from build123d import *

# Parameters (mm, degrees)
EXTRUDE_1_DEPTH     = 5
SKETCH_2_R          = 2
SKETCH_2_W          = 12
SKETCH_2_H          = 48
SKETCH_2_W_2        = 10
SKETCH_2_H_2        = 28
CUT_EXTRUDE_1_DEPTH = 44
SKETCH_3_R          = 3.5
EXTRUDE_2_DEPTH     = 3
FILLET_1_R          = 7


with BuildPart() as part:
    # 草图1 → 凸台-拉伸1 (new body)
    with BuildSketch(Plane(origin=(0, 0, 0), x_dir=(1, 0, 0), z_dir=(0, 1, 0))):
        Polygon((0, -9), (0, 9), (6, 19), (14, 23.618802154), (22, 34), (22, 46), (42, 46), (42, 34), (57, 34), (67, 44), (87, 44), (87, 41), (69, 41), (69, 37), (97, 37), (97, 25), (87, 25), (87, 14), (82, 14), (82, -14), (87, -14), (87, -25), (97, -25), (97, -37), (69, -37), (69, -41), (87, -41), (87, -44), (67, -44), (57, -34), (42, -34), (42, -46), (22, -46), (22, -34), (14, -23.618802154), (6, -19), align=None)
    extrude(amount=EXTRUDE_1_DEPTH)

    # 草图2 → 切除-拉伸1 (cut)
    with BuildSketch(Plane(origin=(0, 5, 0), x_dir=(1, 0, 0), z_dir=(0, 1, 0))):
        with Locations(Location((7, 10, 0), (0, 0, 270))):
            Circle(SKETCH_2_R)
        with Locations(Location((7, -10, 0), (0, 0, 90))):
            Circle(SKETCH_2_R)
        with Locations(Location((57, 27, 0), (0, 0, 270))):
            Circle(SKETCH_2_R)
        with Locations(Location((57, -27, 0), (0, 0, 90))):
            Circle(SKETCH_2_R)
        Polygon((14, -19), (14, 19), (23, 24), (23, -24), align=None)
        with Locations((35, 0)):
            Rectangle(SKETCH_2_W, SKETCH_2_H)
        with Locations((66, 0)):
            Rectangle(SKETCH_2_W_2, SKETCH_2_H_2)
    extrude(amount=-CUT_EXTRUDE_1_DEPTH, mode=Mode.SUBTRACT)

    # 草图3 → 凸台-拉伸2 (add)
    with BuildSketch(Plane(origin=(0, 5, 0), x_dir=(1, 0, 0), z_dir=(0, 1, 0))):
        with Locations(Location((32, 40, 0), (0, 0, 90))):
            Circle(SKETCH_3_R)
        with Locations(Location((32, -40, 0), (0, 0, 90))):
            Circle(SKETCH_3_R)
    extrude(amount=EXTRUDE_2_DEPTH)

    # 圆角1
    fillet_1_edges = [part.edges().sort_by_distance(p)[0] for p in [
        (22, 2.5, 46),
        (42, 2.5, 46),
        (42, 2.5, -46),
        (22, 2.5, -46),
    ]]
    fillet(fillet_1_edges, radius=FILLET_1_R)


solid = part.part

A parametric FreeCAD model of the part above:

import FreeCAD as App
import Part
import Sketcher
from FreeCAD import Vector
Q = App.Units.Quantity


def edges_at(feature, points):
    """Names of the edges that pass closest to the given points."""
    edges = feature.Shape.Edges
    near = lambda p: min(range(len(edges)), key=lambda i: edges[i].distToShape(Part.Vertex(*p))[0])
    return sorted({f"Edge{near(p) + 1}" for p in points})

doc = App.newDocument("Part")
body = doc.addObject("PartDesign::Body", "Body")

sketch1 = body.newObject("Sketcher::SketchObject", "Sketch")
sketch1.AttachmentSupport = (doc.getObject("XZ_Plane"), [""])
sketch1.MapMode = "FlatFace"
sketch1.addGeometry(Part.LineSegment(Vector(0, -9, 0), Vector(0, 9, 0)), False)
sketch1.addGeometry(Part.LineSegment(Vector(0, 9, 0), Vector(6, 19, 0)), False)
sketch1.addGeometry(Part.LineSegment(Vector(6, 19, 0), Vector(14, 23.6, 0)), False)
sketch1.addGeometry(Part.LineSegment(Vector(14, 23.6, 0), Vector(22, 34, 0)), False)
sketch1.addGeometry(Part.LineSegment(Vector(22, 34, 0), Vector(22, 46, 0)), False)
sketch1.addGeometry(Part.LineSegment(Vector(22, 46, 0), Vector(42, 46, 0)), False)
sketch1.addGeometry(Part.LineSegment(Vector(42, 46, 0), Vector(42, 34, 0)), False)
sketch1.addGeometry(Part.LineSegment(Vector(42, 34, 0), Vector(57, 34, 0)), False)
sketch1.addGeometry(Part.LineSegment(Vector(57, 34, 0), Vector(67, 44, 0)), False)
sketch1.addGeometry(Part.LineSegment(Vector(67, 44, 0), Vector(87, 44, 0)), False)
sketch1.addGeometry(Part.LineSegment(Vector(87, 44, 0), Vector(87, 41, 0)), False)
sketch1.addGeometry(Part.LineSegment(Vector(87, 41, 0), Vector(69, 41, 0)), False)
sketch1.addGeometry(Part.LineSegment(Vector(69, 41, 0), Vector(69, 37, 0)), False)
sketch1.addGeometry(Part.LineSegment(Vector(69, 37, 0), Vector(97, 37, 0)), False)
sketch1.addGeometry(Part.LineSegment(Vector(97, 37, 0), Vector(97, 25, 0)), False)
sketch1.addGeometry(Part.LineSegment(Vector(97, 25, 0), Vector(87, 25, 0)), False)
sketch1.addGeometry(Part.LineSegment(Vector(87, 25, 0), Vector(87, 14, 0)), False)
sketch1.addGeometry(Part.LineSegment(Vector(87, 14, 0), Vector(82, 14, 0)), False)
sketch1.addGeometry(Part.LineSegment(Vector(82, 14, 0), Vector(82, -14, 0)), False)
sketch1.addGeometry(Part.LineSegment(Vector(82, -14, 0), Vector(87, -14, 0)), False)
sketch1.addGeometry(Part.LineSegment(Vector(87, -14, 0), Vector(87, -25, 0)), False)
sketch1.addGeometry(Part.LineSegment(Vector(87, -25, 0), Vector(97, -25, 0)), False)
sketch1.addGeometry(Part.LineSegment(Vector(97, -25, 0), Vector(97, -37, 0)), False)
sketch1.addGeometry(Part.LineSegment(Vector(97, -37, 0), Vector(69, -37, 0)), False)
sketch1.addGeometry(Part.LineSegment(Vector(69, -37, 0), Vector(69, -41, 0)), False)
sketch1.addGeometry(Part.LineSegment(Vector(69, -41, 0), Vector(87, -41, 0)), False)
sketch1.addGeometry(Part.LineSegment(Vector(87, -41, 0), Vector(87, -44, 0)), False)
sketch1.addGeometry(Part.LineSegment(Vector(87, -44, 0), Vector(67, -44, 0)), False)
sketch1.addGeometry(Part.LineSegment(Vector(67, -44, 0), Vector(57, -34, 0)), False)
sketch1.addGeometry(Part.LineSegment(Vector(57, -34, 0), Vector(42, -34, 0)), False)
sketch1.addGeometry(Part.LineSegment(Vector(42, -34, 0), Vector(42, -46, 0)), False)
sketch1.addGeometry(Part.LineSegment(Vector(42, -46, 0), Vector(22, -46, 0)), False)
sketch1.addGeometry(Part.LineSegment(Vector(22, -46, 0), Vector(22, -34, 0)), False)
sketch1.addGeometry(Part.LineSegment(Vector(22, -34, 0), Vector(14, -23.6, 0)), False)
sketch1.addGeometry(Part.LineSegment(Vector(14, -23.6, 0), Vector(6, -19, 0)), False)
sketch1.addGeometry(Part.LineSegment(Vector(6, -19, 0), Vector(0, -9, 0)), False)
sketch1.addConstraint(Sketcher.Constraint("Coincident", 0, 2, 1, 1))
sketch1.addConstraint(Sketcher.Constraint("Coincident", 1, 2, 2, 1))
sketch1.addConstraint(Sketcher.Constraint("Coincident", 2, 2, 3, 1))
sketch1.addConstraint(Sketcher.Constraint("Coincident", 3, 2, 4, 1))
sketch1.addConstraint(Sketcher.Constraint("Coincident", 4, 2, 5, 1))
sketch1.addConstraint(Sketcher.Constraint("Coincident", 5, 2, 6, 1))
sketch1.addConstraint(Sketcher.Constraint("Coincident", 6, 2, 7, 1))
sketch1.addConstraint(Sketcher.Constraint("Coincident", 7, 2, 8, 1))
sketch1.addConstraint(Sketcher.Constraint("Coincident", 8, 2, 9, 1))
sketch1.addConstraint(Sketcher.Constraint("Coincident", 9, 2, 10, 1))
sketch1.addConstraint(Sketcher.Constraint("Coincident", 10, 2, 11, 1))
sketch1.addConstraint(Sketcher.Constraint("Coincident", 11, 2, 12, 1))
sketch1.addConstraint(Sketcher.Constraint("Coincident", 12, 2, 13, 1))
sketch1.addConstraint(Sketcher.Constraint("Coincident", 13, 2, 14, 1))
sketch1.addConstraint(Sketcher.Constraint("Coincident", 14, 2, 15, 1))
sketch1.addConstraint(Sketcher.Constraint("Coincident", 15, 2, 16, 1))
sketch1.addConstraint(Sketcher.Constraint("Coincident", 16, 2, 17, 1))
sketch1.addConstraint(Sketcher.Constraint("Coincident", 17, 2, 18, 1))
sketch1.addConstraint(Sketcher.Constraint("Coincident", 18, 2, 19, 1))
sketch1.addConstraint(Sketcher.Constraint("Coincident", 19, 2, 20, 1))
sketch1.addConstraint(Sketcher.Constraint("Coincident", 20, 2, 21, 1))
sketch1.addConstraint(Sketcher.Constraint("Coincident", 21, 2, 22, 1))
sketch1.addConstraint(Sketcher.Constraint("Coincident", 22, 2, 23, 1))
sketch1.addConstraint(Sketcher.Constraint("Coincident", 23, 2, 24, 1))
sketch1.addConstraint(Sketcher.Constraint("Coincident", 24, 2, 25, 1))
sketch1.addConstraint(Sketcher.Constraint("Coincident", 25, 2, 26, 1))
sketch1.addConstraint(Sketcher.Constraint("Coincident", 26, 2, 27, 1))
sketch1.addConstraint(Sketcher.Constraint("Coincident", 27, 2, 28, 1))
sketch1.addConstraint(Sketcher.Constraint("Coincident", 28, 2, 29, 1))
sketch1.addConstraint(Sketcher.Constraint("Coincident", 29, 2, 30, 1))
sketch1.addConstraint(Sketcher.Constraint("Coincident", 30, 2, 31, 1))
sketch1.addConstraint(Sketcher.Constraint("Coincident", 31, 2, 32, 1))
sketch1.addConstraint(Sketcher.Constraint("Coincident", 32, 2, 33, 1))
sketch1.addConstraint(Sketcher.Constraint("Coincident", 33, 2, 34, 1))
sketch1.addConstraint(Sketcher.Constraint("Coincident", 34, 2, 35, 1))
sketch1.addConstraint(Sketcher.Constraint("Coincident", 35, 2, 0, 1))
sketch1.addConstraint(Sketcher.Constraint("Vertical", 0))
sketch1.addConstraint(Sketcher.Constraint("Vertical", 4))
sketch1.addConstraint(Sketcher.Constraint("Horizontal", 5))
sketch1.addConstraint(Sketcher.Constraint("Vertical", 6))
sketch1.addConstraint(Sketcher.Constraint("Horizontal", 7))
sketch1.addConstraint(Sketcher.Constraint("Horizontal", 9))
sketch1.addConstraint(Sketcher.Constraint("Vertical", 10))
sketch1.addConstraint(Sketcher.Constraint("Horizontal", 11))
sketch1.addConstraint(Sketcher.Constraint("Vertical", 12))
sketch1.addConstraint(Sketcher.Constraint("Horizontal", 13))
sketch1.addConstraint(Sketcher.Constraint("Vertical", 14))
sketch1.addConstraint(Sketcher.Constraint("Horizontal", 15))
sketch1.addConstraint(Sketcher.Constraint("Vertical", 16))
sketch1.addConstraint(Sketcher.Constraint("Horizontal", 17))
sketch1.addConstraint(Sketcher.Constraint("Vertical", 18))
sketch1.addConstraint(Sketcher.Constraint("Horizontal", 19))
sketch1.addConstraint(Sketcher.Constraint("Vertical", 20))
sketch1.addConstraint(Sketcher.Constraint("Horizontal", 21))
sketch1.addConstraint(Sketcher.Constraint("Vertical", 22))
sketch1.addConstraint(Sketcher.Constraint("Horizontal", 23))
sketch1.addConstraint(Sketcher.Constraint("Vertical", 24))
sketch1.addConstraint(Sketcher.Constraint("Horizontal", 25))
sketch1.addConstraint(Sketcher.Constraint("Vertical", 26))
sketch1.addConstraint(Sketcher.Constraint("Horizontal", 27))
sketch1.addConstraint(Sketcher.Constraint("Horizontal", 29))
sketch1.addConstraint(Sketcher.Constraint("Vertical", 30))
sketch1.addConstraint(Sketcher.Constraint("Horizontal", 31))
sketch1.addConstraint(Sketcher.Constraint("Vertical", 32))
sketch1.addConstraint(Sketcher.Constraint("Symmetric", 0, 2, 35, 2, -1, 1))
sketch1.addConstraint(Sketcher.Constraint("Symmetric", 16, 2, 19, 2, -1))
sketch1.addConstraint(Sketcher.Constraint("Symmetric", 14, 2, 21, 2, -1))
sketch1.addConstraint(Sketcher.Constraint("Symmetric", 12, 2, 23, 2, -1))
sketch1.addConstraint(Sketcher.Constraint("Symmetric", 10, 2, 25, 2, -1))
sketch1.addConstraint(Sketcher.Constraint("Symmetric", 8, 2, 27, 2, -1))
sketch1.addConstraint(Sketcher.Constraint("Symmetric", 7, 2, 28, 2, -1))
sketch1.addConstraint(Sketcher.Constraint("Symmetric", 5, 2, 30, 2, -1))
sketch1.addConstraint(Sketcher.Constraint("Symmetric", 3, 2, 32, 2, -1))
sketch1.addConstraint(Sketcher.Constraint("Symmetric", 2, 2, 33, 2, -1))
sketch1.addConstraint(Sketcher.Constraint("Symmetric", 1, 2, 34, 2, -1))
sketch1.addConstraint(Sketcher.Constraint("Perpendicular", 8, 28))
sketch1.addConstraint(Sketcher.Constraint("Horizontal", 3, 2, 6, 2))
sketch1.addConstraint(Sketcher.Constraint("Vertical", 10, 2, 15, 2))
sketch1.addConstraint(Sketcher.Constraint("Equal", 5, 9))
sketch1.addConstraint(Sketcher.Constraint("Equal", 25, 0))
sketch1.addConstraint(Sketcher.Constraint("Equal", 6, 14))
sketch1.addConstraint(Sketcher.Constraint("Equal", 23, 18))
sketch1.addConstraint(Sketcher.Constraint("DistanceX", 5, 1, 5, 2, Q("20 mm")))
sketch1.addConstraint(Sketcher.Constraint("DistanceX", 7, 1, 7, 2, Q("15 mm")))
sketch1.addConstraint(Sketcher.Constraint("DistanceX", 11, 2, 11, 1, Q("18 mm")))
sketch1.addConstraint(Sketcher.Constraint("DistanceX", 13, 1, 13, 2, Q("28 mm")))
sketch1.addConstraint(Sketcher.Constraint("DistanceX", 17, 2, 17, 1, Q("5 mm")))
sketch1.addConstraint(Sketcher.Constraint("DistanceY", 4, 1, 4, 2, Q("12 mm")))
sketch1.addConstraint(Sketcher.Constraint("DistanceY", 10, 2, 10, 1, Q("3 mm")))
sketch1.addConstraint(Sketcher.Constraint("DistanceY", 12, 2, 12, 1, Q("4 mm")))
sketch1.addConstraint(Sketcher.Constraint("DistanceY", 16, 2, 16, 1, Q("11 mm")))
sketch1.addConstraint(Sketcher.Constraint("Angle", 2, Q("30 deg")))
sketch1.addConstraint(Sketcher.Constraint("DistanceX", -1, 1, 1, 2, Q("6 mm")))
sketch1.addConstraint(Sketcher.Constraint("DistanceY", -1, 1, 1, 2, Q("19 mm")))
sketch1.addConstraint(Sketcher.Constraint("DistanceX", -1, 1, 2, 2, Q("14 mm")))
sketch1.addConstraint(Sketcher.Constraint("DistanceX", -1, 1, 3, 2, Q("22 mm")))
sketch1.addConstraint(Sketcher.Constraint("DistanceY", -1, 1, 3, 2, Q("34 mm")))
pad1 = body.newObject("PartDesign::Pad", "Pad")
pad1.Profile = sketch1
pad1.Length = 5
pad1.Reversed = True

sketch2 = body.newObject("Sketcher::SketchObject", "Sketch001")
sketch2.AttachmentSupport = (doc.getObject("XZ_Plane"), [""])
sketch2.MapMode = "FlatFace"
sketch2.AttachmentOffset = App.Placement(Vector(0, 0, -5), App.Rotation())
sketch2.addGeometry(Part.Circle(Vector(7, -10, 0), Vector(0, 0, 1), 2), False)
sketch2.addGeometry(Part.Circle(Vector(7, 10, 0), Vector(0, 0, 1), 2), False)
sketch2.addGeometry(Part.Circle(Vector(57, -27, 0), Vector(0, 0, 1), 2), False)
sketch2.addGeometry(Part.Circle(Vector(57, 27, 0), Vector(0, 0, 1), 2), False)
sketch2.addGeometry(Part.LineSegment(Vector(14, -19, 0), Vector(14, 19, 0)), False)
sketch2.addGeometry(Part.LineSegment(Vector(14, 19, 0), Vector(23, 24, 0)), False)
sketch2.addGeometry(Part.LineSegment(Vector(23, 24, 0), Vector(23, -24, 0)), False)
sketch2.addGeometry(Part.LineSegment(Vector(23, -24, 0), Vector(14, -19, 0)), False)
sketch2.addGeometry(Part.LineSegment(Vector(29, -24, 0), Vector(29, 24, 0)), False)
sketch2.addGeometry(Part.LineSegment(Vector(29, 24, 0), Vector(41, 24, 0)), False)
sketch2.addGeometry(Part.LineSegment(Vector(41, 24, 0), Vector(41, -24, 0)), False)
sketch2.addGeometry(Part.LineSegment(Vector(41, -24, 0), Vector(29, -24, 0)), False)
sketch2.addGeometry(Part.LineSegment(Vector(61, -14, 0), Vector(61, 14, 0)), False)
sketch2.addGeometry(Part.LineSegment(Vector(61, 14, 0), Vector(71, 14, 0)), False)
sketch2.addGeometry(Part.LineSegment(Vector(71, 14, 0), Vector(71, -14, 0)), False)
sketch2.addGeometry(Part.LineSegment(Vector(71, -14, 0), Vector(61, -14, 0)), False)
sketch2.addConstraint(Sketcher.Constraint("Coincident", 4, 2, 5, 1))
sketch2.addConstraint(Sketcher.Constraint("Coincident", 5, 2, 6, 1))
sketch2.addConstraint(Sketcher.Constraint("Coincident", 6, 2, 7, 1))
sketch2.addConstraint(Sketcher.Constraint("Coincident", 7, 2, 4, 1))
sketch2.addConstraint(Sketcher.Constraint("Coincident", 8, 2, 9, 1))
sketch2.addConstraint(Sketcher.Constraint("Coincident", 9, 2, 10, 1))
sketch2.addConstraint(Sketcher.Constraint("Coincident", 10, 2, 11, 1))
sketch2.addConstraint(Sketcher.Constraint("Coincident", 11, 2, 8, 1))
sketch2.addConstraint(Sketcher.Constraint("Coincident", 12, 2, 13, 1))
sketch2.addConstraint(Sketcher.Constraint("Coincident", 13, 2, 14, 1))
sketch2.addConstraint(Sketcher.Constraint("Coincident", 14, 2, 15, 1))
sketch2.addConstraint(Sketcher.Constraint("Coincident", 15, 2, 12, 1))
sketch2.addConstraint(Sketcher.Constraint("Vertical", 4))
sketch2.addConstraint(Sketcher.Constraint("Vertical", 6))
sketch2.addConstraint(Sketcher.Constraint("Vertical", 8))
sketch2.addConstraint(Sketcher.Constraint("Horizontal", 9))
sketch2.addConstraint(Sketcher.Constraint("Vertical", 10))
sketch2.addConstraint(Sketcher.Constraint("Horizontal", 11))
sketch2.addConstraint(Sketcher.Constraint("Vertical", 12))
sketch2.addConstraint(Sketcher.Constraint("Horizontal", 13))
sketch2.addConstraint(Sketcher.Constraint("Vertical", 14))
sketch2.addConstraint(Sketcher.Constraint("Horizontal", 15))
sketch2.addConstraint(Sketcher.Constraint("Equal", 0, 1))
sketch2.addConstraint(Sketcher.Constraint("Equal", 1, 2))
sketch2.addConstraint(Sketcher.Constraint("Equal", 2, 3))
sketch2.addConstraint(Sketcher.Constraint("Symmetric", 0, 3, 1, 3, -1))
sketch2.addConstraint(Sketcher.Constraint("Symmetric", 2, 3, 3, 3, -1))
sketch2.addConstraint(Sketcher.Constraint("Horizontal", 5, 2, 8, 2))
sketch2.addConstraint(Sketcher.Constraint("Horizontal", 6, 2, 10, 2))
sketch2.addConstraint(Sketcher.Constraint("Equal", 5, 7))
sketch2.addConstraint(Sketcher.Constraint("Diameter", 0, Q("4 mm")))
sketch2.addConstraint(Sketcher.Constraint("DistanceX", 9, 1, 9, 2, Q("12 mm")))
sketch2.addConstraint(Sketcher.Constraint("DistanceX", 13, 1, 13, 2, Q("10 mm")))
sketch2.addConstraint(Sketcher.Constraint("DistanceY", 4, 1, 4, 2, Q("38 mm")))
sketch2.addConstraint(Sketcher.Constraint("DistanceY", 6, 2, 6, 1, Q("48 mm")))
sketch2.addConstraint(Sketcher.Constraint("DistanceY", 12, 1, 12, 2, Q("28 mm")))
sketch2.addConstraint(Sketcher.Constraint("DistanceX", -1, 1, 0, 3, Q("7 mm")))
sketch2.addConstraint(Sketcher.Constraint("DistanceY", 0, 3, -1, 1, Q("10 mm")))
sketch2.addConstraint(Sketcher.Constraint("DistanceX", -1, 1, 2, 3, Q("57 mm")))
sketch2.addConstraint(Sketcher.Constraint("DistanceY", 2, 3, -1, 1, Q("27 mm")))
sketch2.addConstraint(Sketcher.Constraint("DistanceX", -1, 1, 4, 2, Q("14 mm")))
sketch2.addConstraint(Sketcher.Constraint("DistanceY", -1, 1, 4, 2, Q("19 mm")))
sketch2.addConstraint(Sketcher.Constraint("DistanceX", -1, 1, 5, 2, Q("23 mm")))
sketch2.addConstraint(Sketcher.Constraint("DistanceX", -1, 1, 8, 2, Q("29 mm")))
sketch2.addConstraint(Sketcher.Constraint("DistanceX", -1, 1, 12, 2, Q("61 mm")))
sketch2.addConstraint(Sketcher.Constraint("DistanceY", -1, 1, 12, 2, Q("14 mm")))
pocket1 = body.newObject("PartDesign::Pocket", "Pocket")
pocket1.Profile = sketch2
pocket1.Length = 44
pocket1.Reversed = True

sketch3 = body.newObject("Sketcher::SketchObject", "Sketch002")
sketch3.AttachmentSupport = (doc.getObject("XZ_Plane"), [""])
sketch3.MapMode = "FlatFace"
sketch3.AttachmentOffset = App.Placement(Vector(0, 0, -5), App.Rotation())
sketch3.addGeometry(Part.Circle(Vector(32, -40, 0), Vector(0, 0, 1), 3.5), False)
sketch3.addGeometry(Part.Circle(Vector(32, 40, 0), Vector(0, 0, 1), 3.5), False)
sketch3.addConstraint(Sketcher.Constraint("Equal", 0, 1))
sketch3.addConstraint(Sketcher.Constraint("Symmetric", 0, 3, 1, 3, -1))
sketch3.addConstraint(Sketcher.Constraint("Diameter", 0, Q("7 mm")))
sketch3.addConstraint(Sketcher.Constraint("DistanceX", -1, 1, 0, 3, Q("32 mm")))
sketch3.addConstraint(Sketcher.Constraint("DistanceY", 0, 3, -1, 1, Q("40 mm")))
pad2 = body.newObject("PartDesign::Pad", "Pad001")
pad2.Profile = sketch3
pad2.Length = 3
pad2.Reversed = True
doc.recompute()

fillet = body.newObject("PartDesign::Fillet", "Fillet")
fillet.Base = (pad2, edges_at(pad2, [
    (22, 2.5, 46),
    (42, 2.5, 46),
    (42, 2.5, -46),
    (22, 2.5, -46),
]))
fillet.Radius = 7

doc.recompute()
